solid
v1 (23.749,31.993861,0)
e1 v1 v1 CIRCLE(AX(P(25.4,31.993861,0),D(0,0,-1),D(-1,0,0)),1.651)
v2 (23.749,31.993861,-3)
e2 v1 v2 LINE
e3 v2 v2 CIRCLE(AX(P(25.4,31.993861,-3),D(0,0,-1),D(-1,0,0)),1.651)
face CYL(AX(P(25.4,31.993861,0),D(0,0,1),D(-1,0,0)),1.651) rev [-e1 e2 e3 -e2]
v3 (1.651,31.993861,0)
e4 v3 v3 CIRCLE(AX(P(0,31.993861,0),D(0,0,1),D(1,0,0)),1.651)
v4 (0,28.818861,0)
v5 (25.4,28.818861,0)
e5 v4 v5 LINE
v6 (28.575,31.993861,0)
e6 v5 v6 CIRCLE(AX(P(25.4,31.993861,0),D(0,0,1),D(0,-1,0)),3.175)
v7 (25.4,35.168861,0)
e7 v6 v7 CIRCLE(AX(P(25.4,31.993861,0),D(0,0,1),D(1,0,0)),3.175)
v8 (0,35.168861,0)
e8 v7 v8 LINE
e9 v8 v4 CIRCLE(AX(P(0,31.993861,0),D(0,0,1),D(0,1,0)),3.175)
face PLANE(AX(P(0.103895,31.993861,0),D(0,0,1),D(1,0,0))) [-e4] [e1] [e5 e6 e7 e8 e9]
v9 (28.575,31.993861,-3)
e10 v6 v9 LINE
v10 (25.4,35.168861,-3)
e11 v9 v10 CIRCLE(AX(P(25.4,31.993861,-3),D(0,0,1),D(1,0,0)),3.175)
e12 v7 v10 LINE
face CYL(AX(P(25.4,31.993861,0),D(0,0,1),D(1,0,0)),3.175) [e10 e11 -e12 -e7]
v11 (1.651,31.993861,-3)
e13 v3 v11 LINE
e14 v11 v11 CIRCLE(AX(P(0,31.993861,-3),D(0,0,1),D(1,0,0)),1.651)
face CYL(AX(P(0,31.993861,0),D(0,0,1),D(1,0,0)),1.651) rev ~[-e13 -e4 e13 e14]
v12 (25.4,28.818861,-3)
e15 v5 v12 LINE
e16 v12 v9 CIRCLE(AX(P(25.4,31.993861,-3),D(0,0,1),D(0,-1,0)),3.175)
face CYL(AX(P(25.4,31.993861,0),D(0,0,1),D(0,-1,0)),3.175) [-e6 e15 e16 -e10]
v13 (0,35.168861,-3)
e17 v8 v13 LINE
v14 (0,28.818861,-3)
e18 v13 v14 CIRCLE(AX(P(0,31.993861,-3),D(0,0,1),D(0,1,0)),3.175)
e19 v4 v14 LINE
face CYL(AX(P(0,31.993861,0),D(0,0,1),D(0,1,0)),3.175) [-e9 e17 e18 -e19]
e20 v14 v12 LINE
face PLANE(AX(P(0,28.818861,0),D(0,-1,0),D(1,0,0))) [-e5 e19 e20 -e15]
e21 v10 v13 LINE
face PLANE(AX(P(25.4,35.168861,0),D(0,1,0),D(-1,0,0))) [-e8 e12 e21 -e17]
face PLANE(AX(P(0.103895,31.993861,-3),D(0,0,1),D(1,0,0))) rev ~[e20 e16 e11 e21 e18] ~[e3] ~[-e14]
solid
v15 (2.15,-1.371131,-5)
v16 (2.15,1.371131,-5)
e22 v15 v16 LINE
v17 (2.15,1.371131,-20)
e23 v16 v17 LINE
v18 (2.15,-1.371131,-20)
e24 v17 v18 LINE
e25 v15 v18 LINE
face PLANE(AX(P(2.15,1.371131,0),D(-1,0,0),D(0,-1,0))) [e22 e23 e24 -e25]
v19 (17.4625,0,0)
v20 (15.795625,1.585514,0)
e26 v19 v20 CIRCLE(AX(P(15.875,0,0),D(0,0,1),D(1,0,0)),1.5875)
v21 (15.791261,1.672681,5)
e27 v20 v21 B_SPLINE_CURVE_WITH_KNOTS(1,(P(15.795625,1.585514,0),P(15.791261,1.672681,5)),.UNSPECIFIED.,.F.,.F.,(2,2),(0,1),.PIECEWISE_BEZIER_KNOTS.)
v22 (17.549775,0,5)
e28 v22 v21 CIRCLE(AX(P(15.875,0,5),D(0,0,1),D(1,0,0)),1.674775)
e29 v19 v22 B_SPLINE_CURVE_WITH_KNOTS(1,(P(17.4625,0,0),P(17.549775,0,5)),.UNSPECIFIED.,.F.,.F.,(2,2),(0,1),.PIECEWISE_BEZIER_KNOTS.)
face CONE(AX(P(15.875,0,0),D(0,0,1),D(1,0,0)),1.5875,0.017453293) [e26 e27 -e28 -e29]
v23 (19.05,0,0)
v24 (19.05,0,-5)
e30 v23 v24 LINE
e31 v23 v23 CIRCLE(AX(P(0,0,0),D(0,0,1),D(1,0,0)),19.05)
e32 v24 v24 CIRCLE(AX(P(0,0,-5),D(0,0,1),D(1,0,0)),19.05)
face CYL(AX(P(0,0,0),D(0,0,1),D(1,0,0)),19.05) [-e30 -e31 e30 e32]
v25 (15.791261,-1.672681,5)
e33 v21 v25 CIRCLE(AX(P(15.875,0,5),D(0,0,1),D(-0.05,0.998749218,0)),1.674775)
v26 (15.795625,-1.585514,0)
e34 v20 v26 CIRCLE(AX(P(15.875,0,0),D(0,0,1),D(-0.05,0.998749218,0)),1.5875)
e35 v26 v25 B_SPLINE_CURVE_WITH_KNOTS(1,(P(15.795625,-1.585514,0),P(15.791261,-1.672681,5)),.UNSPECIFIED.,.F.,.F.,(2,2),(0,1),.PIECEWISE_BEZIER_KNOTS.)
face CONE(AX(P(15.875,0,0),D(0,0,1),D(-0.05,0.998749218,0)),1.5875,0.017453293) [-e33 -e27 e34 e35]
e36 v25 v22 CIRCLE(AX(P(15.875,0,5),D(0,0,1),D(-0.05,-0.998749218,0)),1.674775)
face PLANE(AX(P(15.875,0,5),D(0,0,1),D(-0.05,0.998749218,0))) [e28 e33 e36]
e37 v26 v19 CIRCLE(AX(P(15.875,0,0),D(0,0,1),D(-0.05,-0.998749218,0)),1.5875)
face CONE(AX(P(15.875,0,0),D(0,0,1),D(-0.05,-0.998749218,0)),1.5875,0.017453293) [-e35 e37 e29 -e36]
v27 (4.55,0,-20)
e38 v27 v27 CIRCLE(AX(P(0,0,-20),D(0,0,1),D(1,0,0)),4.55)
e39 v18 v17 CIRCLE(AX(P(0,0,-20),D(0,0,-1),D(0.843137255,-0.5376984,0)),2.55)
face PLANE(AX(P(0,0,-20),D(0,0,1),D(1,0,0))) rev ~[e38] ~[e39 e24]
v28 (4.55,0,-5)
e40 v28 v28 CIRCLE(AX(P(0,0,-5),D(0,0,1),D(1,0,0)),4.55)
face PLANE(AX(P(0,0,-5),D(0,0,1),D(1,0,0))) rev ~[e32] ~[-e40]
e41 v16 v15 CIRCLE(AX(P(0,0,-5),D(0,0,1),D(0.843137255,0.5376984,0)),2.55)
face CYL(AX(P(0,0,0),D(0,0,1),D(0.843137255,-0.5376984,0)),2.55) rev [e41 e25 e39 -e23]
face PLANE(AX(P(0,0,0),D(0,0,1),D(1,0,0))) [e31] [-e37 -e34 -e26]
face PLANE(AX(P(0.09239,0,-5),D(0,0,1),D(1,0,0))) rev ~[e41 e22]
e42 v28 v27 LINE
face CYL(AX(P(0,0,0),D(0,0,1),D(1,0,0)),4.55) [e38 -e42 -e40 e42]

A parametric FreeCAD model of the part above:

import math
import FreeCAD as App
import Part
import Sketcher
from FreeCAD import Vector
Q = App.Units.Quantity

doc = App.newDocument("Part")
params = doc.addObject("Spreadsheet::Sheet", "Params")
for row, (alias, value) in enumerate([
    ("sketch1_radius", "2.55 mm"),
    ("pad1_length", "5 mm"),
    ("sketch2_diameter", "38.1 mm"),
    ("sketch2_diameter2", "9.1 mm"),
    ("pad2_length", "5 mm"),
    ("sketch3_diameter", "9.1 mm"),
    ("sketch3_radius", "2.55 mm"),
    ("pad3_length", "20 mm"),
    ("pad4_length", "5 mm"),
    ("pad4_taper", "1 deg"),
    ("sketch5_width", "25.4 mm"),
    ("pad5_length", "3 mm"),
], start=1):
    params.set(f"A{row}", alias)
    params.set(f"B{row}", "=" + value)
    params.setAlias(f"B{row}", alias)

body = doc.addObject("PartDesign::Body", "Body")

# Sketch on XY plane
sketch1 = doc.addObject("Sketcher::SketchObject", "Sketch")
body.addObject(sketch1)
sketch1.AttachmentSupport = (doc.XY_Plane, [""])
sketch1.MapMode = "FlatFace"
sketch1.addGeometry(Part.LineSegment(Vector(2.1, -1.4, 0), Vector(2.1, 1.4, 0)), False)
sketch1.addGeometry(Part.ArcOfCircle(Part.Circle(Vector(0, 0, 0), Vector(0, 0, 1), 2.5), math.radians(33), math.radians(327)), False)
sketch1.addConstraint(Sketcher.Constraint("Coincident", 0, 1, 1, 2))
sketch1.addConstraint(Sketcher.Constraint("Coincident", 1, 1, 0, 2))
sketch1.addConstraint(Sketcher.Constraint("Vertical", 0))
sketch1.addConstraint(Sketcher.Constraint("Coincident", 1, 3, -1, 1))
sketch1.addConstraint(Sketcher.Constraint("Radius", 1, Q("2.55 mm")))
sketch1.addConstraint(Sketcher.Constraint("DistanceX", -1, 1, 0, 1, Q("2.15 mm")))
sketch1.setExpression("Constraints[4]", "Params.sketch1_radius")
pad1 = doc.addObject("PartDesign::Pad", "Pad")
body.addObject(pad1)
pad1.Profile = sketch1
pad1.setExpression("Length", "Params.pad1_length")
pad1.Reversed = True
body2 = doc.addObject("PartDesign::Body", "Body001")

# Sketch on XY plane
sketch2 = doc.addObject("Sketcher::SketchObject", "Sketch001")
body2.addObject(sketch2)
sketch2.AttachmentSupport = (doc.getObject("XY_Plane001"), [""])
sketch2.MapMode = "FlatFace"
sketch2.addGeometry(Part.Circle(Vector(0, 0, 0), Vector(0, 0, 1), 19.1), False)
sketch2.addGeometry(Part.Circle(Vector(0, 0, 0), Vector(0, 0, 1), 4.5), False)
sketch2.addConstraint(Sketcher.Constraint("Coincident", 0, 3, -1, 1))
sketch2.addConstraint(Sketcher.Constraint("Coincident", 1, 3, -1, 1))
sketch2.addConstraint(Sketcher.Constraint("Diameter", 0, Q("38.1 mm")))
sketch2.addConstraint(Sketcher.Constraint("Diameter", 1, Q("9.1 mm")))
sketch2.setExpression("Constraints[2]", "Params.sketch2_diameter")
sketch2.setExpression("Constraints[3]", "Params.sketch2_diameter2")
pad2 = doc.addObject("PartDesign::Pad", "Pad001")
body2.addObject(pad2)
pad2.Profile = sketch2
pad2.setExpression("Length", "Params.pad2_length")
pad2.Reversed = True
body.AllowCompound = True
doc.recompute()

boolean = doc.addObject("PartDesign::Boolean", "Boolean")
body.addObject(boolean)
boolean.Type = "Fuse"
boolean.addObjects([body2])

# Sketch on XY plane
sketch3 = doc.addObject("Sketcher::SketchObject", "Sketch002")
body.addObject(sketch3)
sketch3.AttachmentSupport = (doc.XY_Plane, [""])
sketch3.MapMode = "FlatFace"
sketch3.addGeometry(Part.Circle(Vector(0, 0, 0), Vector(0, 0, 1), 4.5), False)
sketch3.addGeometry(Part.LineSegment(Vector(2.1, 1.4, 0), Vector(2.1, -1.4, 0)), False)
sketch3.addGeometry(Part.ArcOfCircle(Part.Circle(Vector(0, 0, 0), Vector(0, 0, 1), 2.5), math.radians(33), math.radians(327)), False)
sketch3.addConstraint(Sketcher.Constraint("Coincident", 1, 1, 2, 1))
sketch3.addConstraint(Sketcher.Constraint("Coincident", 2, 2, 1, 2))
sketch3.addConstraint(Sketcher.Constraint("Vertical", 1))
sketch3.addConstraint(Sketcher.Constraint("Coincident", 0, 3, -1, 1))
sketch3.addConstraint(Sketcher.Constraint("Coincident", 2, 3, -1, 1))
sketch3.addConstraint(Sketcher.Constraint("Diameter", 0, Q("9.1 mm")))
sketch3.addConstraint(Sketcher.Constraint("Radius", 2, Q("2.55 mm")))
sketch3.addConstraint(Sketcher.Constraint("DistanceX", -1, 1, 1, 1, Q("2.15 mm")))
sketch3.setExpression("Constraints[5]", "Params.sketch3_diameter")
sketch3.setExpression("Constraints[6]", "Params.sketch3_radius")
pad3 = doc.addObject("PartDesign::Pad", "Pad002")
body.addObject(pad3)
pad3.Profile = sketch3
pad3.setExpression("Length", "Params.pad3_length")
pad3.Reversed = True

# Sketch on XY plane
sketch4 = doc.addObject("Sketcher::SketchObject", "Sketch003")
body.addObject(sketch4)
sketch4.AttachmentSupport = (doc.XY_Plane, [""])
sketch4.MapMode = "FlatFace"
sketch4.addGeometry(Part.ArcOfCircle(Part.Circle(Vector(15.9, 0, 0), Vector(0, 0, 1), 1.6), math.radians(93), math.radians(267)), False)
sketch4.addGeometry(Part.ArcOfCircle(Part.Circle(Vector(15.9, 0, 0), Vector(0, 0, 1), 1.6), math.radians(-93), math.radians(0)), False)
sketch4.addGeometry(Part.ArcOfCircle(Part.Circle(Vector(15.9, 0, 0), Vector(0, 0, 1), 1.6), math.radians(0), math.radians(93)), False)
sketch4.addConstraint(Sketcher.Constraint("Tangent", 0, 2, 1, 1))
sketch4.addConstraint(Sketcher.Constraint("Tangent", 1, 2, 2, 1))
sketch4.addConstraint(Sketcher.Constraint("Tangent", 2, 2, 0, 1))
sketch4.addConstraint(Sketcher.Constraint("Symmetric", 0, 2, 2, 2, -1))
sketch4.addConstraint(Sketcher.Constraint("PointOnObject", 1, 2, -1))
sketch4.addConstraint(Sketcher.Constraint("Radius", 0, Q("1.5875 mm")))
sketch4.addConstraint(Sketcher.Constraint("DistanceX", -1, 1, 0, 3, Q("15.875 mm")))
sketch4.addConstraint(Sketcher.Constraint("DistanceY", 0, 2, 2, 2, Q("3.171029 mm")))
pad4 = doc.addObject("PartDesign::Pad", "Pad003")
body.addObject(pad4)
pad4.Profile = sketch4
pad4.setExpression("Length", "Params.pad4_length")
pad4.setExpression("TaperAngle", "Params.pad4_taper")
body3 = doc.addObject("PartDesign::Body", "Body002")

# Sketch on XY plane
sketch5 = doc.addObject("Sketcher::SketchObject", "Sketch004")
body3.addObject(sketch5)
sketch5.AttachmentSupport = (doc.getObject("XY_Plane002"), [""])
sketch5.MapMode = "FlatFace"
sketch5.addGeometry(Part.ArcOfCircle(Part.Circle(Vector(0, 32, 0), Vector(0, 0, 1), 3.2), math.radians(90), math.radians(270)), False)
sketch5.addGeometry(Part.LineSegment(Vector(0, 28.8, 0), Vector(25.4, 28.8, 0)), False)
sketch5.addGeometry(Part.ArcOfCircle(Part.Circle(Vector(25.4, 32, 0), Vector(0, 0, 1), 3.2), math.radians(-90), math.radians(0)), False)
sketch5.addGeometry(Part.ArcOfCircle(Part.Circle(Vector(25.4, 32, 0), Vector(0, 0, 1), 3.2), math.radians(0), math.radians(90)), False)
sketch5.addGeometry(Part.LineSegment(Vector(25.4, 35.2, 0), Vector(0, 35.2, 0)), False)
sketch5.addGeometry(Part.Circle(Vector(0, 32, 0), Vector(0, 0, 1), 1.7), False)
sketch5.addGeometry(Part.Circle(Vector(25.4, 32, 0), Vector(0, 0, 1), 1.7), False)
sketch5.addConstraint(Sketcher.Constraint("Tangent", 0, 2, 1, 1))
sketch5.addConstraint(Sketcher.Constraint("Tangent", 1, 2, 2, 1))
sketch5.addConstraint(Sketcher.Constraint("Tangent", 2, 2, 3, 1))
sketch5.addConstraint(Sketcher.Constraint("Tangent", 3, 2, 4, 1))
sketch5.addConstraint(Sketcher.Constraint("Tangent", 4, 2, 0, 1))
sketch5.addConstraint(Sketcher.Constraint("Horizontal", 1))
sketch5.addConstraint(Sketcher.Constraint("Horizontal", 4))
sketch5.addConstraint(Sketcher.Constraint("Coincident", 5, 3, 0, 3))
sketch5.addConstraint(Sketcher.Constraint("Coincident", 6, 3, 2, 3))
sketch5.addConstraint(Sketcher.Constraint("Equal", 0, 2))
sketch5.addConstraint(Sketcher.Constraint("Equal", 5, 6))
sketch5.addConstraint(Sketcher.Constraint("PointOnObject", 0, 3, -2))
sketch5.addConstraint(Sketcher.Constraint("Horizontal", 6, 3, 2, 2))
sketch5.addConstraint(Sketcher.Constraint("Diameter", 5, Q("3.302 mm")))
sketch5.addConstraint(Sketcher.Constraint("DistanceX", 1, 1, 1, 2, Q("25.4 mm")))
sketch5.addConstraint(Sketcher.Constraint("Radius", 0, Q("3.175 mm")))
sketch5.addConstraint(Sketcher.Constraint("DistanceY", -1, 1, 0, 3, Q("31.993861 mm")))
sketch5.setExpression("Constraints[14]", "Params.sketch5_width")
pad5 = doc.addObject("PartDesign::Pad", "Pad004")
body3.addObject(pad5)
pad5.Profile = sketch5
pad5.setExpression("Length", "Params.pad5_length")
pad5.Reversed = True

doc.recompute()
